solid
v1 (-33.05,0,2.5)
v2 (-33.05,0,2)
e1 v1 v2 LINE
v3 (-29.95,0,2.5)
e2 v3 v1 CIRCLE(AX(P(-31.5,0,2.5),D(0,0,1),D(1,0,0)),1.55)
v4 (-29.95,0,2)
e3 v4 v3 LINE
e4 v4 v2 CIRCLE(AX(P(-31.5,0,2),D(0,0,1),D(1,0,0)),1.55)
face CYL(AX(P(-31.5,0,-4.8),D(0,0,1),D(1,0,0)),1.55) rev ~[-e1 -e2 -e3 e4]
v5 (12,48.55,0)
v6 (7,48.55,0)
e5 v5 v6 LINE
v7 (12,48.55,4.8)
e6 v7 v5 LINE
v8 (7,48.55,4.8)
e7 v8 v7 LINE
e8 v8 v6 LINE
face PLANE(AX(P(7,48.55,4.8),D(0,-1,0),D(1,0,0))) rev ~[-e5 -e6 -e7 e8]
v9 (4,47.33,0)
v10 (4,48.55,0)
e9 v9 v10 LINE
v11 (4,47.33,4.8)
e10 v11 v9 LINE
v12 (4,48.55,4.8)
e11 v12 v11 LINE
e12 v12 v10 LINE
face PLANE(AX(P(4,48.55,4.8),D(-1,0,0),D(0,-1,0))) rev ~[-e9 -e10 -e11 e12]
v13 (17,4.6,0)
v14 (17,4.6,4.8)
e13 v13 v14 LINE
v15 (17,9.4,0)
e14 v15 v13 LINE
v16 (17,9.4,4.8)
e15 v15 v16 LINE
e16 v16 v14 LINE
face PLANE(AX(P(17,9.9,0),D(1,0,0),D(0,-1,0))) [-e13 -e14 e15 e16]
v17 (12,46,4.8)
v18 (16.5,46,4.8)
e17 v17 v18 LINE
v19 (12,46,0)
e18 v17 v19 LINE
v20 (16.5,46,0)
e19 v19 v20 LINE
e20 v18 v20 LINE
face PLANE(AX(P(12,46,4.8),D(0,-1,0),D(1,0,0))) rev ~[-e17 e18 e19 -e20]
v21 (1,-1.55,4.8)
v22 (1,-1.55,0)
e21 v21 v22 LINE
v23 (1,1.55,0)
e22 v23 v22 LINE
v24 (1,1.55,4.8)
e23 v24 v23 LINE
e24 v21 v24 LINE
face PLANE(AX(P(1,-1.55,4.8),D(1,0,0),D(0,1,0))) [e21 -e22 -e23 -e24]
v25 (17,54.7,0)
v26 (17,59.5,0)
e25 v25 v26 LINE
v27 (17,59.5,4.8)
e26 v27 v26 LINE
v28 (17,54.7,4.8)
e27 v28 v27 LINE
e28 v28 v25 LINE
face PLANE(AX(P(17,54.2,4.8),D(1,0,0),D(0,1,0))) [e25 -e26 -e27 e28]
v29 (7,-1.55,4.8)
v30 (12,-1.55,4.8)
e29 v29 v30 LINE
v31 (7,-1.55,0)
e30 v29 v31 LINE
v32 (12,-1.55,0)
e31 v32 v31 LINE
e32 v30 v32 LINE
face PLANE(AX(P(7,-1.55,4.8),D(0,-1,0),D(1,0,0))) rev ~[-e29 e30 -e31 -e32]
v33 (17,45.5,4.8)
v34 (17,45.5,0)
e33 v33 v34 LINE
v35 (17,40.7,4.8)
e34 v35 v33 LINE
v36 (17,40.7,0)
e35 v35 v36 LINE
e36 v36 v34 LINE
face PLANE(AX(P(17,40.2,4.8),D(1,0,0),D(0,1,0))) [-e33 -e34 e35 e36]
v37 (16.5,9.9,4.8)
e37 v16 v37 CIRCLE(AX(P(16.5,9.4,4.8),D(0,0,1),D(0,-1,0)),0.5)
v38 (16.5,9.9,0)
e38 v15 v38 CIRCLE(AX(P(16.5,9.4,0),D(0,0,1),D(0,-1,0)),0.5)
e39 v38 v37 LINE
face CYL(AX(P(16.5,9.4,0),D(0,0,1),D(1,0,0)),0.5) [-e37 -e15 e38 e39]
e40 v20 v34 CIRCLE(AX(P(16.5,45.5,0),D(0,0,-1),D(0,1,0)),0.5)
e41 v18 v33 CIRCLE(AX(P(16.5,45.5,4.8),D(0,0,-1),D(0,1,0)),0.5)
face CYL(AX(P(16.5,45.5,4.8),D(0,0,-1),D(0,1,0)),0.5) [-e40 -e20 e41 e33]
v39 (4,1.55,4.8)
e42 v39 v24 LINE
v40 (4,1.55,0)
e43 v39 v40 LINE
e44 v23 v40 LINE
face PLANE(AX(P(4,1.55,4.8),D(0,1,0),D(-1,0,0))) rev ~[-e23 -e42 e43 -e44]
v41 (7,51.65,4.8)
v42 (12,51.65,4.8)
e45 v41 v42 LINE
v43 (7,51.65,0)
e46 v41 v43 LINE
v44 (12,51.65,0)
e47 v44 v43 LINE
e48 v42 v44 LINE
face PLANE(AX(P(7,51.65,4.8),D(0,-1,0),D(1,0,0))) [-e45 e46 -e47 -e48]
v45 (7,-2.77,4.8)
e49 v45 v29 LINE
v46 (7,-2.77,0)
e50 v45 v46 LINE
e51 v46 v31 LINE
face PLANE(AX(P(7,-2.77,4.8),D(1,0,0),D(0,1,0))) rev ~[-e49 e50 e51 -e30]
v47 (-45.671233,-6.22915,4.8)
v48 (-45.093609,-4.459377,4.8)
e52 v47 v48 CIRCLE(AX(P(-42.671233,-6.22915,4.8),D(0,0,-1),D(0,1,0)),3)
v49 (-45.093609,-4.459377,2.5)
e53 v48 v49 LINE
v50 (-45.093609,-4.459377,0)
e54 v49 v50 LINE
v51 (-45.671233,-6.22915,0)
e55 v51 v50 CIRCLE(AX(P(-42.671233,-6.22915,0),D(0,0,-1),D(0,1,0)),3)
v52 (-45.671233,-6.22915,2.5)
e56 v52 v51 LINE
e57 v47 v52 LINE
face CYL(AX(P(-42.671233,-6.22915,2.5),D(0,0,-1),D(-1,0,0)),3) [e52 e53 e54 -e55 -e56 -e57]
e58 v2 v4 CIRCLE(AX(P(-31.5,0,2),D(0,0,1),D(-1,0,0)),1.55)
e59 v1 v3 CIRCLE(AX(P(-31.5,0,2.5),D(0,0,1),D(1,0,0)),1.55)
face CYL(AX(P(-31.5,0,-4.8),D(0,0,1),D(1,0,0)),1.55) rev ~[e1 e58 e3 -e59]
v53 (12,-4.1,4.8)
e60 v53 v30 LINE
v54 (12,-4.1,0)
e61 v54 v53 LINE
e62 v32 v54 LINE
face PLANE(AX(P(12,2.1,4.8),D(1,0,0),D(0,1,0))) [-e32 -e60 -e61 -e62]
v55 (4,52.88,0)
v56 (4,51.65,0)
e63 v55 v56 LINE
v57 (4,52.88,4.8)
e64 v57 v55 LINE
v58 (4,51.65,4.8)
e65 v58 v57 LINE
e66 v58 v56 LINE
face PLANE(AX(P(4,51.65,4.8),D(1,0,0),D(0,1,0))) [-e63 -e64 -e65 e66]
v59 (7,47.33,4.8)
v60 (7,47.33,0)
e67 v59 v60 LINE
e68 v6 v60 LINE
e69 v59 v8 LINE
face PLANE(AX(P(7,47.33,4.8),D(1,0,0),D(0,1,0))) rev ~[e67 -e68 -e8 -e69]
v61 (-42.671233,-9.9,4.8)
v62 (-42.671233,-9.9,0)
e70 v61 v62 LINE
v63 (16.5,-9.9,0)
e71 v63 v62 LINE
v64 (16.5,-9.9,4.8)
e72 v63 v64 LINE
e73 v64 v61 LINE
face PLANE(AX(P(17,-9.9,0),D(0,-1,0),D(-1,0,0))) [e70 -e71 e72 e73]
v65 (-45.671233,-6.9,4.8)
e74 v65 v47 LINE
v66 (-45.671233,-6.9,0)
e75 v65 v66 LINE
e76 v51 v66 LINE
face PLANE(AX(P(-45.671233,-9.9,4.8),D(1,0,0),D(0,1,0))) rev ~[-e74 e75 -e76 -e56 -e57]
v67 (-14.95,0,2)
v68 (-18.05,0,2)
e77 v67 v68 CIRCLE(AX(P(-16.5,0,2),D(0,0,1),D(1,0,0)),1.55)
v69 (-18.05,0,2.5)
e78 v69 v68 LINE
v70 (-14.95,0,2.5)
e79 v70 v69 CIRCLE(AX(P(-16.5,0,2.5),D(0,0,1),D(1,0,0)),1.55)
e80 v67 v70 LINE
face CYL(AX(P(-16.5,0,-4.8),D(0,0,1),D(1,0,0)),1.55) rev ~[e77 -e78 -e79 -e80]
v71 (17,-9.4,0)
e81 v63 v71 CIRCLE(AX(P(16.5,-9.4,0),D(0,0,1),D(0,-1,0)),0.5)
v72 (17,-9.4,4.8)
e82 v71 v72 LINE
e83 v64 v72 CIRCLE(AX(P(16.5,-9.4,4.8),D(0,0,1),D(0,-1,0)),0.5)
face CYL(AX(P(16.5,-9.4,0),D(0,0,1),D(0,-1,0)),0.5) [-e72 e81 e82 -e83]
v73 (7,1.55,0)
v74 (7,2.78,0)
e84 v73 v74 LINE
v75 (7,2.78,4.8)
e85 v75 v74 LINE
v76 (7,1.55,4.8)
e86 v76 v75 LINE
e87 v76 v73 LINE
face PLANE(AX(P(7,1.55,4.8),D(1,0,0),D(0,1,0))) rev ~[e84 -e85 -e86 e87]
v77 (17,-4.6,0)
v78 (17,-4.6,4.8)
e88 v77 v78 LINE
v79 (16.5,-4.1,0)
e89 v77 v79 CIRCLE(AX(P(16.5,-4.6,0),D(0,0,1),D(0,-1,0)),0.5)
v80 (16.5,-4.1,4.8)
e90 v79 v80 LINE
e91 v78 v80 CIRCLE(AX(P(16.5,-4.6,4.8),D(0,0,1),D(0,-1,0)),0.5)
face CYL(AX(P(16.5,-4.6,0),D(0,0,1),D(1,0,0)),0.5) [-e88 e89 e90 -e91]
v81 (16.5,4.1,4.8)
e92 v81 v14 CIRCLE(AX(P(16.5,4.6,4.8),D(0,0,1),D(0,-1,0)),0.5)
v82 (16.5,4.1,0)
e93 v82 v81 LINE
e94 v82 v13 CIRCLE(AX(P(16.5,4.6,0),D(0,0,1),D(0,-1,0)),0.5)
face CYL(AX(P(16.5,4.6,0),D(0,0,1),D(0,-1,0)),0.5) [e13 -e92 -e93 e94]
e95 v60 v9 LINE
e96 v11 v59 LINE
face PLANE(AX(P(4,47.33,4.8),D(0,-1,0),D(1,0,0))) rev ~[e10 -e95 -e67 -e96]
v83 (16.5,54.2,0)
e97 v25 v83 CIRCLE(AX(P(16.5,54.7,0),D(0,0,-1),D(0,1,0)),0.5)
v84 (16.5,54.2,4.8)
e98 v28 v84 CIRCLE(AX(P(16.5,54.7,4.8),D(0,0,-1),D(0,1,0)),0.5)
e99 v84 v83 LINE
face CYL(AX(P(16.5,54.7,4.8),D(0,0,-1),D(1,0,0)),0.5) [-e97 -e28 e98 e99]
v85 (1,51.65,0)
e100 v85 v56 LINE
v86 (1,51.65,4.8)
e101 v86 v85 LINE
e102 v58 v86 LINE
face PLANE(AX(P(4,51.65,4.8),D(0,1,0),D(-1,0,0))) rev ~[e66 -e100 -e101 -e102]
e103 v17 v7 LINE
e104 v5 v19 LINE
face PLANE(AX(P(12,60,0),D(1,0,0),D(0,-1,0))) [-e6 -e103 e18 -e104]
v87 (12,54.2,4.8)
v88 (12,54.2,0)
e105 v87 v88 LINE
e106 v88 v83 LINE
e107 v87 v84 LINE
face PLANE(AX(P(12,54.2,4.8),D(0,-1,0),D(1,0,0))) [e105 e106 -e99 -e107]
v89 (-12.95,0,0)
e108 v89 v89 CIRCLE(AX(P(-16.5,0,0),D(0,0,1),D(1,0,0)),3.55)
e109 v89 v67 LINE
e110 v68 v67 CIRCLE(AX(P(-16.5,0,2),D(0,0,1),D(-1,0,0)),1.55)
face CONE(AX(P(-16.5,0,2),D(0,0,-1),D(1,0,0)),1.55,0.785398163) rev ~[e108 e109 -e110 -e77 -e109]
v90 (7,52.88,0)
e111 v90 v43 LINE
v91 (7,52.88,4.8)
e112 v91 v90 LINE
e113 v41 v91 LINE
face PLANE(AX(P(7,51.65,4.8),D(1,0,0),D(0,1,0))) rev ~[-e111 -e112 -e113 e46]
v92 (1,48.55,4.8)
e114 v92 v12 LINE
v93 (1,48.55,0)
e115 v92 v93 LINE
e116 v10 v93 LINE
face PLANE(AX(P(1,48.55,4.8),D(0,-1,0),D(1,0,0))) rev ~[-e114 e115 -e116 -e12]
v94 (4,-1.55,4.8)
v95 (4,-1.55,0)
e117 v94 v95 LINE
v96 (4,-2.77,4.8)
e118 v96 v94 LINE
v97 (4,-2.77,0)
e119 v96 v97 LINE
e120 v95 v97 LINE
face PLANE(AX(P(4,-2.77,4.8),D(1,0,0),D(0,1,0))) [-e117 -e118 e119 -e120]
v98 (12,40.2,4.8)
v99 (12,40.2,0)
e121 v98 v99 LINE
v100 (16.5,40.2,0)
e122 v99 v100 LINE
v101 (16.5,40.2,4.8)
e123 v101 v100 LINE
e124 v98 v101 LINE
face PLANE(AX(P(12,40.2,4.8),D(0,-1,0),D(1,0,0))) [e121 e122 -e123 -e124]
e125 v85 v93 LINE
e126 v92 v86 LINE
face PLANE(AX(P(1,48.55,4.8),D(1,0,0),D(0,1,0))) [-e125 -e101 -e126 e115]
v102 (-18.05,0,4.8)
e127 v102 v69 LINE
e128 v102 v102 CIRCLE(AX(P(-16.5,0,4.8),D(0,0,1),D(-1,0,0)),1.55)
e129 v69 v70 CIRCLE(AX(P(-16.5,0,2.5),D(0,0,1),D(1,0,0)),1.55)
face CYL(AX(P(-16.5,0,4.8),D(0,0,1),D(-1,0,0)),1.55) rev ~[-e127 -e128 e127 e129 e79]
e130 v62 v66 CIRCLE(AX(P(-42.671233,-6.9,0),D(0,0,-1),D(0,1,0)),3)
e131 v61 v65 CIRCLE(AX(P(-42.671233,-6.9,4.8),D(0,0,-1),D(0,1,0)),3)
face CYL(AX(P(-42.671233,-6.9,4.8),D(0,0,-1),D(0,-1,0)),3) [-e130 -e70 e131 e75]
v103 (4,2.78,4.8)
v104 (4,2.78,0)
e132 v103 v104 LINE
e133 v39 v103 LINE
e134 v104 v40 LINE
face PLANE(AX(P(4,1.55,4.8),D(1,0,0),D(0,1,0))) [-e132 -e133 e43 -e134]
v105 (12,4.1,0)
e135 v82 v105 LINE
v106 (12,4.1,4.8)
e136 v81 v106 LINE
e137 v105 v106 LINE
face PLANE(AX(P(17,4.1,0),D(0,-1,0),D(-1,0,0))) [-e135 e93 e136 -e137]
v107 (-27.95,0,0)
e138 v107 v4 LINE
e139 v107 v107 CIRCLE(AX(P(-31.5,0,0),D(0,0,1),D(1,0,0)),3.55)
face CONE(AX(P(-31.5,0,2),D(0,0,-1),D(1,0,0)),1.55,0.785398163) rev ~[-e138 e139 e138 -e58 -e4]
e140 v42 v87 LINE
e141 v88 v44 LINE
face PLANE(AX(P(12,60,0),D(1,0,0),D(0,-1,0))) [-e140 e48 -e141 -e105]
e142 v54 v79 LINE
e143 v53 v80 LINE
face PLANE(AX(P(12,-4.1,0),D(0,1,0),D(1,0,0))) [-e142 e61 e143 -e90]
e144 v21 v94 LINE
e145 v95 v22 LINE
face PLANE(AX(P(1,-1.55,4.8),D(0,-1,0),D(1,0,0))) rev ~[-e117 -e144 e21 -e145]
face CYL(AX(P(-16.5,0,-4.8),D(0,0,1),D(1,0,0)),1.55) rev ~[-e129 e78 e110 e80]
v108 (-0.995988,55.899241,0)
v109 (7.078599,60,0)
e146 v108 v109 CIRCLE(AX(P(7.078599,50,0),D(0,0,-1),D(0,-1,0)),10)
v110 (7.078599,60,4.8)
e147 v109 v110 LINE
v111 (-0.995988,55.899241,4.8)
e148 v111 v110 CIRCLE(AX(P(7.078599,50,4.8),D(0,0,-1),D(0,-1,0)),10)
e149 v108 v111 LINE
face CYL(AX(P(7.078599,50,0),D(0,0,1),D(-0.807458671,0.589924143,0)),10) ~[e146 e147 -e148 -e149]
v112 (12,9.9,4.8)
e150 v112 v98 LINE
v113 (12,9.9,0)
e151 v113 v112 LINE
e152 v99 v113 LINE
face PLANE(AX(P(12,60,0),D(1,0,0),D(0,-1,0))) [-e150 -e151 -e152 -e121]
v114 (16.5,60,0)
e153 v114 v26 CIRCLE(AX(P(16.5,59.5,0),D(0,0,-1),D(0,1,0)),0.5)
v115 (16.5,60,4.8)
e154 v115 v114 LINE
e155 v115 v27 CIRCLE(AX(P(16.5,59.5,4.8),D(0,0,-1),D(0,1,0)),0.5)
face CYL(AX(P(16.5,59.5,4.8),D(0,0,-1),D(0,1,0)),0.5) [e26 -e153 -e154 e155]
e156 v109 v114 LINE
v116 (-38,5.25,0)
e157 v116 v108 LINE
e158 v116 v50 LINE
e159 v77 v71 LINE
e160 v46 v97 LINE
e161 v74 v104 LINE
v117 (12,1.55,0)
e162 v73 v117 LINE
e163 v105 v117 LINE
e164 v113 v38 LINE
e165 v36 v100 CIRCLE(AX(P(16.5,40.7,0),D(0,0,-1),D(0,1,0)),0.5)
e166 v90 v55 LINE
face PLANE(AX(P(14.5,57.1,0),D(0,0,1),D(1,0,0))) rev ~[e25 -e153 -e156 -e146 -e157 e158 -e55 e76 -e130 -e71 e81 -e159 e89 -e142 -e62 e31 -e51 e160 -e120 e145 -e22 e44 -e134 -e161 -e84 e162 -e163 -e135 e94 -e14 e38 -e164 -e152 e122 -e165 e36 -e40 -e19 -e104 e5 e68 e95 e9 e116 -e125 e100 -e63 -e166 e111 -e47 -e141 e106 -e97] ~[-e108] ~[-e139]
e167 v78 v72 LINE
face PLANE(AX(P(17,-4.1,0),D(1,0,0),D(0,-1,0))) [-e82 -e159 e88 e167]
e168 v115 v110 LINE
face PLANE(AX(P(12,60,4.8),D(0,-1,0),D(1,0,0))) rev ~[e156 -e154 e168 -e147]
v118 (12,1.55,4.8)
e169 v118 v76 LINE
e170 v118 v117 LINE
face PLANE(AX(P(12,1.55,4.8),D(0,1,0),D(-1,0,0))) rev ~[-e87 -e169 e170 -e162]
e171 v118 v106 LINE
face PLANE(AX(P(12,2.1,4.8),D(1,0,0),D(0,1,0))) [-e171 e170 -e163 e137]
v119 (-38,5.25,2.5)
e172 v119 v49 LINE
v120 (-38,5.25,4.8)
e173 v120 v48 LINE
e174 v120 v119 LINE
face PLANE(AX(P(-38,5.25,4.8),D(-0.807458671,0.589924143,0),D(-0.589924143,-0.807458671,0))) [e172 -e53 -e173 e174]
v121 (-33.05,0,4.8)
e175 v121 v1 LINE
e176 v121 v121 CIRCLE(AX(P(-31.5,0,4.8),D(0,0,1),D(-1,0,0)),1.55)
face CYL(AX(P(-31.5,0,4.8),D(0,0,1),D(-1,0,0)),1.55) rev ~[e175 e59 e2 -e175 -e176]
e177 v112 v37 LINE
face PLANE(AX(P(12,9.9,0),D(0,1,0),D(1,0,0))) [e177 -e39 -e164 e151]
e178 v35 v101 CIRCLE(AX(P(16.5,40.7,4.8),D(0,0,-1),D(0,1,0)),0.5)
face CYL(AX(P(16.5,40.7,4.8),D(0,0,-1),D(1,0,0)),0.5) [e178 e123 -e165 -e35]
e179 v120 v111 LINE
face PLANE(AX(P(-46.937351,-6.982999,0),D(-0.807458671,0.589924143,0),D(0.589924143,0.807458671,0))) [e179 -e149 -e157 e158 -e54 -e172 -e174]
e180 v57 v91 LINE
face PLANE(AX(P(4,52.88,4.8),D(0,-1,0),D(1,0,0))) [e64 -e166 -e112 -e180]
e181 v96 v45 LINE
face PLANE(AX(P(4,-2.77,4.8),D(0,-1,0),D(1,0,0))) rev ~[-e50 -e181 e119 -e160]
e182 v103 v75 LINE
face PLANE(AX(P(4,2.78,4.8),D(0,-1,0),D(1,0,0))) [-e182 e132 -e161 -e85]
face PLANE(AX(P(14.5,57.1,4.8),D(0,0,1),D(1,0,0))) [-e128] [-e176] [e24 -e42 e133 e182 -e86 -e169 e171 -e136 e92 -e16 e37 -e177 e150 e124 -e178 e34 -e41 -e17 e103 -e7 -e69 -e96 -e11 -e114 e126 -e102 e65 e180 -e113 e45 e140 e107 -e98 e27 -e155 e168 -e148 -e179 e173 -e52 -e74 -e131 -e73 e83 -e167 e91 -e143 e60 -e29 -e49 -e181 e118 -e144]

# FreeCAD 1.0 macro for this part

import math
import FreeCAD as App
import Part
import Sketcher
from FreeCAD import Vector


def edges_at(feature, points):
    """Names of the edges that pass closest to the given points."""
    edges = feature.Shape.Edges
    near = lambda p: min(range(len(edges)), key=lambda i: edges[i].distToShape(Part.Vertex(*p))[0])
    return sorted({f"Edge{near(p) + 1}" for p in points})


def faces_at(feature, points):
    """Names of the faces that lie closest to the given points."""
    faces = feature.Shape.Faces
    near = lambda p: min(range(len(faces)), key=lambda i: faces[i].distToShape(Part.Vertex(*p))[0])
    return sorted({f"Face{near(p) + 1}" for p in points})

doc = App.newDocument("Part")
body = doc.addObject("PartDesign::Body", "Body")

# Sketch on XY plane
sketch1 = body.newObject("Sketcher::SketchObject", "Sketch")
sketch1.AttachmentSupport = (doc.getObject("XY_Plane"), [""])
sketch1.MapMode = "FlatFace"
sketch1.addGeometry([
    Part.LineSegment(Vector(-38, -9.9, 0), Vector(-38, 60, 0)),  # 0
    Part.LineSegment(Vector(-38, 60, 0), Vector(12, 60, 0)),  # 1
    Part.LineSegment(Vector(12, 60, 0), Vector(12, 11.9, 0)),  # 2
    Part.ArcOfCircle(Part.Circle(Vector(12, 10.9, 0), Vector(0, 0, 1), 1), math.radians(90), math.radians(270)),  # 3
    Part.LineSegment(Vector(12, 9.9, 0), Vector(17, 9.9, 0)),  # 4
    Part.LineSegment(Vector(17, 9.9, 0), Vector(17, 4.1, 0)),  # 5
    Part.LineSegment(Vector(17, 4.1, 0), Vector(12, 4.1, 0)),  # 6
    Part.ArcOfCircle(Part.Circle(Vector(12, 3.1, 0), Vector(0, 0, 1), 1), math.radians(90), math.radians(270)),  # 7
    Part.LineSegment(Vector(12, 2.1, 0), Vector(12, -2.1, 0)),  # 8
    Part.ArcOfCircle(Part.Circle(Vector(12, -3.1, 0), Vector(0, 0, 1), 1), math.radians(90), math.radians(270)),  # 9
    Part.LineSegment(Vector(12, -4.1, 0), Vector(17, -4.1, 0)),  # 10
    Part.LineSegment(Vector(17, -4.1, 0), Vector(17, -9.9, 0)),  # 11
    Part.LineSegment(Vector(17, -9.9, 0), Vector(-38, -9.9, 0)),  # 12
], False)
sketch1.addConstraint([
    Sketcher.Constraint("Coincident", 0, 2, 1, 1),
    Sketcher.Constraint("Coincident", 1, 2, 2, 1),
    Sketcher.Constraint("Coincident", 2, 2, 3, 1),
    Sketcher.Constraint("Tangent", 3, 2, 4, 1),
    Sketcher.Constraint("Coincident", 4, 2, 5, 1),
    Sketcher.Constraint("Coincident", 5, 2, 6, 1),
    Sketcher.Constraint("Tangent", 6, 2, 7, 1),
    Sketcher.Constraint("Coincident", 7, 2, 8, 1),
    Sketcher.Constraint("Coincident", 8, 2, 9, 1),
    Sketcher.Constraint("Tangent", 9, 2, 10, 1),
    Sketcher.Constraint("Coincident", 10, 2, 11, 1),
    Sketcher.Constraint("Coincident", 11, 2, 12, 1),
    Sketcher.Constraint("Coincident", 12, 2, 0, 1),
    Sketcher.Constraint("Vertical", 0),
    Sketcher.Constraint("Horizontal", 1),
    Sketcher.Constraint("Vertical", 2),
    Sketcher.Constraint("Horizontal", 4),
    Sketcher.Constraint("Vertical", 5),
    Sketcher.Constraint("Horizontal", 6),
    Sketcher.Constraint("Vertical", 8),
    Sketcher.Constraint("Horizontal", 10),
    Sketcher.Constraint("Vertical", 11),
    Sketcher.Constraint("Horizontal", 12),
    Sketcher.Constraint("Equal", 3, 7),
    Sketcher.Constraint("Equal", 7, 9),
    Sketcher.Constraint("Symmetric", 7, 3, 9, 3, -1),
    Sketcher.Constraint("Symmetric", 4, 2, 11, 2, -1),
    Sketcher.Constraint("Vertical", 3, 3, 7, 3),
    Sketcher.Constraint("Vertical", 9, 3, 1, 2),
    Sketcher.Constraint("Vertical", 6, 2, 7, 2),
    Sketcher.Constraint("Radius", 3, 1.0),
    Sketcher.Constraint("DistanceX", 1, 1, 1, 2, 50.0),
    Sketcher.Constraint("DistanceX", 4, 1, 4, 2, 5.0),
    Sketcher.Constraint("DistanceY", 0, 1, 0, 2, 69.9),
    Sketcher.Constraint("DistanceY", 2, 2, 2, 1, 48.1),
    Sketcher.Constraint("DistanceY", 5, 2, 5, 1, 5.8),
    Sketcher.Constraint("DistanceX", -1, 1, 3, 3, 12.0),
])
pad1 = body.newObject("PartDesign::Pad", "Pad")
pad1.Profile = sketch1
pad1.Length = 4.8

# Sketch on XY plane
sketch2 = body.newObject("Sketcher::SketchObject", "Sketch001")
sketch2.AttachmentSupport = (doc.getObject("XY_Plane"), [""])
sketch2.MapMode = "FlatFace"
sketch2.AttachmentOffset = App.Placement(Vector(0, 0, 4.8), App.Rotation())
sketch2.addGeometry([
    Part.LineSegment(Vector(-38, -5.25, 0), Vector(7, -5.25, 0)),  # 0
    Part.ArcOfCircle(Part.Circle(Vector(7, -4.25, 0), Vector(0, 0, 1), 1), math.radians(-90), math.radians(90)),  # 1
    Part.LineSegment(Vector(7, -3.25, 0), Vector(7, 3.25, 0)),  # 2
    Part.ArcOfCircle(Part.Circle(Vector(7, 4.25, 0), Vector(0, 0, 1), 1), math.radians(-90), math.radians(90)),  # 3
    Part.LineSegment(Vector(7, 5.25, 0), Vector(-38, 5.25, 0)),  # 4
    Part.LineSegment(Vector(-38, 5.25, 0), Vector(-38, -5.25, 0)),  # 5
], False)
sketch2.addConstraint([
    Sketcher.Constraint("Tangent", 0, 2, 1, 1),
    Sketcher.Constraint("Coincident", 1, 2, 2, 1),
    Sketcher.Constraint("Coincident", 2, 2, 3, 1),
    Sketcher.Constraint("Tangent", 3, 2, 4, 1),
    Sketcher.Constraint("Coincident", 4, 2, 5, 1),
    Sketcher.Constraint("Coincident", 5, 2, 0, 1),
    Sketcher.Constraint("Horizontal", 0),
    Sketcher.Constraint("Vertical", 2),
    Sketcher.Constraint("Horizontal", 4),
    Sketcher.Constraint("Vertical", 5),
    Sketcher.Constraint("Equal", 1, 3),
    Sketcher.Constraint("Symmetric", 1, 3, 3, 3, -1),
    Sketcher.Constraint("Vertical", 0, 2, 1, 2),
    Sketcher.Constraint("Radius", 1, 1.0),
    Sketcher.Constraint("DistanceX", 0, 1, 0, 2, 45.0),
    Sketcher.Constraint("DistanceY", 2, 1, 2, 2, 6.5),
    Sketcher.Constraint("DistanceX", -1, 1, 1, 3, 7.0),
])
pocket1 = body.newObject("PartDesign::Pocket", "Pocket")
pocket1.Profile = sketch2
pocket1.Length = 2.3
doc.recompute()

datumplane = body.newObject("PartDesign::Plane", "DatumPlane")
datumplane.AttachmentSupport = (doc.getObject("XZ_Plane"), [""])
datumplane.MapMode = "FlatFace"
datumplane.AttachmentOffset = App.Placement(Vector(0, 0, -5.25), App.Rotation())
draft = body.newObject("PartDesign::Draft", "Draft")
draft.Base = (pocket1, faces_at(pocket1, [(-38, 25.05, 2.4)]))
draft.NeutralPlane = (datumplane, [""])
draft.Angle = 36.151625
draft.Reversed = True

# Sketch on XY plane
sketch3 = body.newObject("Sketcher::SketchObject", "Sketch002")
sketch3.AttachmentSupport = (doc.getObject("XY_Plane"), [""])
sketch3.MapMode = "FlatFace"
sketch3.addGeometry([
    Part.Circle(Vector(-16.5, 0, 0), Vector(0, 0, 1), 1.55),
    Part.Circle(Vector(-31.5, 0, 0), Vector(0, 0, 1), 1.55),
], False)
sketch3.addConstraint([
    Sketcher.Constraint("Equal", 0, 1),
    Sketcher.Constraint("PointOnObject", 0, 3, -1),
    Sketcher.Constraint("PointOnObject", 1, 3, -1),
    Sketcher.Constraint("Diameter", 0, 3.1),
    Sketcher.Constraint("DistanceX", 1, 3, 0, 3, 15.0),
    Sketcher.Constraint("DistanceX", 0, 3, -1, 1, 16.5),
])
doc.recompute()
hole = body.newObject("PartDesign::Hole", "Hole")
hole.Profile = sketch3
hole.ThreadType = "None"
hole.Diameter = 3.1
hole.DepthType = "Dimension"
hole.Depth = 4.8
hole.DrillPoint = "Flat"
hole.Reversed = True
doc.recompute()

fillet = body.newObject("PartDesign::Fillet", "Fillet")
fillet.Base = (hole, edges_at(hole, [(2, 60, 2.4)]))
fillet.Radius = 10

# Sketch on XY plane
sketch4 = body.newObject("Sketcher::SketchObject", "Sketch003")
sketch4.AttachmentSupport = (doc.getObject("XY_Plane"), [""])
sketch4.MapMode = "FlatFace"
sketch4.AttachmentOffset = App.Placement(Vector(0, 0, 4.8), App.Rotation())
sketch4.addGeometry([
    Part.LineSegment(Vector(-38, 5.25, 0), Vector(-45.671233, -5.25, 0)),  # 0
    Part.LineSegment(Vector(-45.671233, -5.25, 0), Vector(7, -5.25, 0)),  # 1
    Part.ArcOfCircle(Part.Circle(Vector(7, -4.25, 0), Vector(0, 0, 1), 1), math.radians(-90), math.radians(90)),  # 2
    Part.LineSegment(Vector(7, -3.25, 0), Vector(7, 3.25, 0)),  # 3
    Part.ArcOfCircle(Part.Circle(Vector(7, 4.25, 0), Vector(0, 0, 1), 1), math.radians(-90), math.radians(90)),  # 4
    Part.LineSegment(Vector(7, 5.25, 0), Vector(-38, 5.25, 0)),  # 5
    Part.Circle(Vector(-31.5, 0, 0), Vector(0, 0, 1), 1.55),  # 6
    Part.Circle(Vector(-16.5, 0, 0), Vector(0, 0, 1), 1.55),  # 7
    Part.ArcOfCircle(Part.Circle(Vector(12, -3.1, 0), Vector(0, 0, 1), 1), math.radians(90), math.radians(270)),  # 8
    Part.LineSegment(Vector(12, -4.1, 0), Vector(12, -2.1, 0)),  # 9
    Part.ArcOfCircle(Part.Circle(Vector(12, 3.1, 0), Vector(0, 0, 1), 1), math.radians(90), math.radians(270)),  # 10
    Part.LineSegment(Vector(12, 2.1, 0), Vector(12, 4.1, 0)),  # 11
    Part.LineSegment(Vector(12, 9.9, 0), Vector(12, 11.9, 0)),  # 12
    Part.ArcOfCircle(Part.Circle(Vector(12, 10.9, 0), Vector(0, 0, 1), 1), math.radians(90), math.radians(270)),  # 13
], False)
sketch4.addConstraint([
    Sketcher.Constraint("Coincident", 0, 2, 1, 1),
    Sketcher.Constraint("Tangent", 1, 2, 2, 1),
    Sketcher.Constraint("Coincident", 2, 2, 3, 1),
    Sketcher.Constraint("Coincident", 3, 2, 4, 1),
    Sketcher.Constraint("Tangent", 4, 2, 5, 1),
    Sketcher.Constraint("Coincident", 5, 2, 0, 1),
    Sketcher.Constraint("Coincident", 8, 1, 9, 2),
    Sketcher.Constraint("Coincident", 9, 1, 8, 2),
    Sketcher.Constraint("Coincident", 10, 1, 11, 2),
    Sketcher.Constraint("Coincident", 11, 1, 10, 2),
    Sketcher.Constraint("Coincident", 12, 1, 13, 2),
    Sketcher.Constraint("Coincident", 13, 1, 12, 2),
    Sketcher.Constraint("Horizontal", 1),
    Sketcher.Constraint("Vertical", 3),
    Sketcher.Constraint("Horizontal", 5),
    Sketcher.Constraint("Vertical", 9),
    Sketcher.Constraint("Vertical", 11),
    Sketcher.Constraint("Vertical", 12),
    Sketcher.Constraint("Equal", 2, 4),
    Sketcher.Constraint("Equal", 6, 7),
    Sketcher.Constraint("Equal", 4, 8),
    Sketcher.Constraint("Equal", 8, 10),
    Sketcher.Constraint("Equal", 10, 13),
    Sketcher.Constraint("Symmetric", 2, 3, 4, 3, -1),
    Sketcher.Constraint("Symmetric", 8, 3, 10, 3, -1),
    Sketcher.Constraint("PointOnObject", 6, 3, -1),
    Sketcher.Constraint("PointOnObject", 7, 3, -1),
    Sketcher.Constraint("Vertical", 10, 3, 13, 3),
    Sketcher.Constraint("Vertical", 1, 2, 2, 2),
    Sketcher.Constraint("Vertical", 13, 3, 8, 1),
    Sketcher.Constraint("Vertical", 9, 1, 10, 1),
    Sketcher.Constraint("Vertical", 11, 1, 12, 1),
    Sketcher.Constraint("Radius", 2, 1.0),
    Sketcher.Constraint("Diameter", 6, 3.1),
    Sketcher.Constraint("DistanceX", 5, 2, 5, 1, 45.0),
    Sketcher.Constraint("DistanceY", 3, 1, 3, 2, 6.5),
    Sketcher.Constraint("DistanceX", -1, 1, 2, 3, 7.0),
    Sketcher.Constraint("DistanceX", -1, 1, 8, 3, 12.0),
    Sketcher.Constraint("DistanceX", 6, 3, 7, 3, 15.0),
    Sketcher.Constraint("DistanceY", 8, 3, 13, 3, 14.0),
    Sketcher.Constraint("DistanceX", 6, 3, -1, 1, 31.5),
    Sketcher.Constraint("DistanceY", 8, 3, -1, 1, 3.1),
    Sketcher.Constraint("Distance", 0, 13.003762),
])
pad2 = body.newObject("PartDesign::Pad", "Pad001")
pad2.Profile = sketch4
pad2.Length = 4.8
pad2.Reversed = True

# Sketch on XY plane
sketch5 = body.newObject("Sketcher::SketchObject", "Sketch004")
sketch5.AttachmentSupport = (doc.getObject("XY_Plane"), [""])
sketch5.MapMode = "FlatFace"
sketch5.AttachmentOffset = App.Placement(Vector(0, 0, 4.8), App.Rotation())
sketch5.addGeometry([
    Part.LineSegment(Vector(-45.671233, -9.9, 0), Vector(-45.671233, -5.25, 0)),
    Part.LineSegment(Vector(-45.671233, -5.25, 0), Vector(-49.068493, -9.9, 0)),
    Part.LineSegment(Vector(-49.068493, -9.9, 0), Vector(-45.671233, -9.9, 0)),
], False)
sketch5.addConstraint([
    Sketcher.Constraint("Coincident", 0, 2, 1, 1),
    Sketcher.Constraint("Coincident", 1, 2, 2, 1),
    Sketcher.Constraint("Coincident", 2, 2, 0, 1),
    Sketcher.Constraint("Vertical", 0),
    Sketcher.Constraint("Horizontal", 2),
    Sketcher.Constraint("DistanceY", 0, 1, 0, 2, 4.65),
    Sketcher.Constraint("DistanceY", 1, 2, -1, 1, 9.9),
    Sketcher.Constraint("DistanceX", 2, 1, 2, 2, 3.39726),
    Sketcher.Constraint("DistanceX", 0, 2, -1, 1, 45.671233),
])
pocket2 = body.newObject("PartDesign::Pocket", "Pocket001")
pocket2.Profile = sketch5
pocket2.Type = "ThroughAll"

# Sketch on XY plane
sketch6 = body.newObject("Sketcher::SketchObject", "Sketch005")
sketch6.AttachmentSupport = (doc.getObject("XY_Plane"), [""])
sketch6.MapMode = "FlatFace"
sketch6.AttachmentOffset = App.Placement(Vector(0, 0, 4.8), App.Rotation())
sketch6.addGeometry([
    Part.LineSegment(Vector(1, 1.55, 0), Vector(1, -1.55, 0)),  # 0
    Part.LineSegment(Vector(1, -1.55, 0), Vector(4, -1.55, 0)),  # 1
    Part.LineSegment(Vector(4, -1.55, 0), Vector(4, -2.77, 0)),  # 2
    Part.LineSegment(Vector(4, -2.77, 0), Vector(7, -2.77, 0)),  # 3
    Part.LineSegment(Vector(7, -2.77, 0), Vector(7, -1.55, 0)),  # 4
    Part.LineSegment(Vector(7, -1.55, 0), Vector(12, -1.55, 0)),  # 5
    Part.LineSegment(Vector(12, -1.55, 0), Vector(12, 1.55, 0)),  # 6
    Part.LineSegment(Vector(12, 1.55, 0), Vector(7, 1.55, 0)),  # 7
    Part.LineSegment(Vector(7, 1.55, 0), Vector(7, 2.78, 0)),  # 8
    Part.LineSegment(Vector(7, 2.78, 0), Vector(4, 2.78, 0)),  # 9
    Part.LineSegment(Vector(4, 2.78, 0), Vector(4, 1.55, 0)),  # 10
    Part.LineSegment(Vector(4, 1.55, 0), Vector(1, 1.55, 0)),  # 11
    Part.LineSegment(Vector(4, 47.33, 0), Vector(7, 47.33, 0)),  # 12
    Part.LineSegment(Vector(7, 47.33, 0), Vector(7, 48.55, 0)),  # 13
    Part.LineSegment(Vector(7, 48.55, 0), Vector(12, 48.55, 0)),  # 14
    Part.LineSegment(Vector(12, 48.55, 0), Vector(12, 51.65, 0)),  # 15
    Part.LineSegment(Vector(12, 51.65, 0), Vector(7, 51.65, 0)),  # 16
    Part.LineSegment(Vector(7, 51.65, 0), Vector(7, 52.88, 0)),  # 17
    Part.LineSegment(Vector(7, 52.88, 0), Vector(4, 52.88, 0)),  # 18
    Part.LineSegment(Vector(4, 52.88, 0), Vector(4, 51.65, 0)),  # 19
    Part.LineSegment(Vector(4, 51.65, 0), Vector(1, 51.65, 0)),  # 20
    Part.LineSegment(Vector(1, 51.65, 0), Vector(1, 48.55, 0)),  # 21
    Part.LineSegment(Vector(1, 48.55, 0), Vector(4, 48.55, 0)),  # 22
    Part.LineSegment(Vector(4, 48.55, 0), Vector(4, 47.33, 0)),  # 23
], False)
sketch6.addConstraint([
    Sketcher.Constraint("Coincident", 0, 2, 1, 1),
    Sketcher.Constraint("Coincident", 1, 2, 2, 1),
    Sketcher.Constraint("Coincident", 2, 2, 3, 1),
    Sketcher.Constraint("Coincident", 3, 2, 4, 1),
    Sketcher.Constraint("Coincident", 4, 2, 5, 1),
    Sketcher.Constraint("Coincident", 5, 2, 6, 1),
    Sketcher.Constraint("Coincident", 6, 2, 7, 1),
    Sketcher.Constraint("Coincident", 7, 2, 8, 1),
    Sketcher.Constraint("Coincident", 8, 2, 9, 1),
    Sketcher.Constraint("Coincident", 9, 2, 10, 1),
    Sketcher.Constraint("Coincident", 10, 2, 11, 1),
    Sketcher.Constraint("Coincident", 11, 2, 0, 1),
    Sketcher.Constraint("Coincident", 12, 2, 13, 1),
    Sketcher.Constraint("Coincident", 13, 2, 14, 1),
    Sketcher.Constraint("Coincident", 14, 2, 15, 1),
    Sketcher.Constraint("Coincident", 15, 2, 16, 1),
    Sketcher.Constraint("Coincident", 16, 2, 17, 1),
    Sketcher.Constraint("Coincident", 17, 2, 18, 1),
    Sketcher.Constraint("Coincident", 18, 2, 19, 1),
    Sketcher.Constraint("Coincident", 19, 2, 20, 1),
    Sketcher.Constraint("Coincident", 20, 2, 21, 1),
    Sketcher.Constraint("Coincident", 21, 2, 22, 1),
    Sketcher.Constraint("Coincident", 22, 2, 23, 1),
    Sketcher.Constraint("Coincident", 23, 2, 12, 1),
    Sketcher.Constraint("Vertical", 0),
    Sketcher.Constraint("Horizontal", 1),
    Sketcher.Constraint("Vertical", 2),
    Sketcher.Constraint("Horizontal", 3),
    Sketcher.Constraint("Vertical", 4),
    Sketcher.Constraint("Horizontal", 5),
    Sketcher.Constraint("Vertical", 6),
    Sketcher.Constraint("Horizontal", 7),
    Sketcher.Constraint("Vertical", 8),
    Sketcher.Constraint("Horizontal", 9),
    Sketcher.Constraint("Vertical", 10),
    Sketcher.Constraint("Horizontal", 11),
    Sketcher.Constraint("Horizontal", 12),
    Sketcher.Constraint("Vertical", 13),
    Sketcher.Constraint("Horizontal", 14),
    Sketcher.Constraint("Vertical", 15),
    Sketcher.Constraint("Horizontal", 16),
    Sketcher.Constraint("Vertical", 17),
    Sketcher.Constraint("Horizontal", 18),
    Sketcher.Constraint("Vertical", 19),
    Sketcher.Constraint("Horizontal", 20),
    Sketcher.Constraint("Vertical", 21),
    Sketcher.Constraint("Horizontal", 22),
    Sketcher.Constraint("Vertical", 23),
    Sketcher.Constraint("Symmetric", 4, 2, 7, 2, -1),
    Sketcher.Constraint("Symmetric", 1, 2, 10, 2, -1),
    Sketcher.Constraint("Horizontal", 1, 2, 4, 2),
    Sketcher.Constraint("Horizontal", 16, 2, 19, 2),
    Sketcher.Constraint("Horizontal", 14, 2, 21, 2),
    Sketcher.Constraint("Vertical", 8, 2, 12, 2),
    Sketcher.Constraint("Vertical", 6, 2, 14, 2),
    Sketcher.Constraint("Vertical", 13, 2, 16, 2),
    Sketcher.Constraint("Vertical", 10, 2, 18, 2),
    Sketcher.Constraint("Vertical", 11, 2, 20, 2),
    Sketcher.Constraint("Vertical", 19, 2, 22, 2),
    Sketcher.Constraint("Equal", 1, 3),
    Sketcher.Constraint("Equal", 4, 13),
    Sketcher.Constraint("Equal", 6, 15),
    Sketcher.Constraint("Equal", 10, 17),
    Sketcher.Constraint("DistanceX", 1, 1, 1, 2, 3.0),
    Sketcher.Constraint("DistanceX", 5, 1, 5, 2, 5.0),
    Sketcher.Constraint("DistanceY", 0, 2, 0, 1, 3.1),
    Sketcher.Constraint("DistanceX", -1, 1, 0, 2, 1.0),
    Sketcher.Constraint("DistanceY", 7, 2, 13, 2, 47.0),
    Sketcher.Constraint("DistanceY", 2, 2, 2, 1, 1.22),
    Sketcher.Constraint("DistanceY", 8, 1, 8, 2, 1.23),
])
pocket3 = body.newObject("PartDesign::Pocket", "Pocket002")
pocket3.Profile = sketch6
pocket3.Type = "ThroughAll"

# Sketch on XY plane
sketch7 = body.newObject("Sketcher::SketchObject", "Sketch006")
sketch7.AttachmentSupport = (doc.getObject("XY_Plane"), [""])
sketch7.MapMode = "FlatFace"
sketch7.AttachmentOffset = App.Placement(Vector(0, 0, 4.8), App.Rotation())
sketch7.addGeometry([
    Part.LineSegment(Vector(12, 60, 0), Vector(12, 54.2, 0)),  # 0
    Part.LineSegment(Vector(12, 54.2, 0), Vector(17, 54.2, 0)),  # 1
    Part.LineSegment(Vector(17, 54.2, 0), Vector(17, 60, 0)),  # 2
    Part.LineSegment(Vector(17, 60, 0), Vector(12, 60, 0)),  # 3
    Part.LineSegment(Vector(12, 46, 0), Vector(12, 40.2, 0)),  # 4
    Part.LineSegment(Vector(12, 40.2, 0), Vector(17, 40.2, 0)),  # 5
    Part.LineSegment(Vector(17, 40.2, 0), Vector(17, 46, 0)),  # 6
    Part.LineSegment(Vector(17, 46, 0), Vector(12, 46, 0)),  # 7
], False)
sketch7.addConstraint([
    Sketcher.Constraint("Coincident", 0, 2, 1, 1),
    Sketcher.Constraint("Coincident", 1, 2, 2, 1),
    Sketcher.Constraint("Coincident", 2, 2, 3, 1),
    Sketcher.Constraint("Coincident", 3, 2, 0, 1),
    Sketcher.Constraint("Coincident", 4, 2, 5, 1),
    Sketcher.Constraint("Coincident", 5, 2, 6, 1),
    Sketcher.Constraint("Coincident", 6, 2, 7, 1),
    Sketcher.Constraint("Coincident", 7, 2, 4, 1),
    Sketcher.Constraint("Vertical", 0),
    Sketcher.Constraint("Horizontal", 1),
    Sketcher.Constraint("Vertical", 2),
    Sketcher.Constraint("Horizontal", 3),
    Sketcher.Constraint("Vertical", 4),
    Sketcher.Constraint("Horizontal", 5),
    Sketcher.Constraint("Vertical", 6),
    Sketcher.Constraint("Horizontal", 7),
    Sketcher.Constraint("Vertical", 3, 2, 4, 2),
    Sketcher.Constraint("Vertical", 2, 2, 5, 2),
    Sketcher.Constraint("Equal", 2, 4),
    Sketcher.Constraint("DistanceX", 1, 1, 1, 2, 5.0),
    Sketcher.Constraint("DistanceY", 0, 2, 0, 1, 5.8),
    Sketcher.Constraint("DistanceX", -1, 1, 0, 2, 12.0),
    Sketcher.Constraint("DistanceY", -1, 1, 2, 2, 60.0),
    Sketcher.Constraint("DistanceY", -1, 1, 6, 2, 46.0),
])
pad3 = body.newObject("PartDesign::Pad", "Pad002")
pad3.Profile = sketch7
pad3.Length = 4.8
pad3.Reversed = True
doc.recompute()

fillet2 = body.newObject("PartDesign::Fillet", "Fillet001")
fillet2.Base = (pad3, edges_at(pad3, [(-45.671, -5.25, 1.25), (-45.671, -9.9, 2.4)]))
fillet2.Radius = 3
doc.recompute()

fillet3 = body.newObject("PartDesign::Fillet", "Fillet002")
fillet3.Base = (fillet2, edges_at(fillet2, [
    (17, -9.9, 2.4),
    (17, -4.1, 2.4),
    (17, 4.1, 2.4),
    (17, 9.9, 2.4),
    (17, 46, 2.4),
    (17, 40.2, 2.4),
    (17, 60, 2.4),
    (17, 54.2, 2.4),
]))
fillet3.Radius = 0.5
doc.recompute()

chamfer = body.newObject("PartDesign::Chamfer", "Chamfer")
chamfer.Base = (fillet3, edges_at(fillet3, [(-31.5, 1.55, 0), (-16.5, 1.55, 0)]))
chamfer.Size = 2

doc.recompute()
